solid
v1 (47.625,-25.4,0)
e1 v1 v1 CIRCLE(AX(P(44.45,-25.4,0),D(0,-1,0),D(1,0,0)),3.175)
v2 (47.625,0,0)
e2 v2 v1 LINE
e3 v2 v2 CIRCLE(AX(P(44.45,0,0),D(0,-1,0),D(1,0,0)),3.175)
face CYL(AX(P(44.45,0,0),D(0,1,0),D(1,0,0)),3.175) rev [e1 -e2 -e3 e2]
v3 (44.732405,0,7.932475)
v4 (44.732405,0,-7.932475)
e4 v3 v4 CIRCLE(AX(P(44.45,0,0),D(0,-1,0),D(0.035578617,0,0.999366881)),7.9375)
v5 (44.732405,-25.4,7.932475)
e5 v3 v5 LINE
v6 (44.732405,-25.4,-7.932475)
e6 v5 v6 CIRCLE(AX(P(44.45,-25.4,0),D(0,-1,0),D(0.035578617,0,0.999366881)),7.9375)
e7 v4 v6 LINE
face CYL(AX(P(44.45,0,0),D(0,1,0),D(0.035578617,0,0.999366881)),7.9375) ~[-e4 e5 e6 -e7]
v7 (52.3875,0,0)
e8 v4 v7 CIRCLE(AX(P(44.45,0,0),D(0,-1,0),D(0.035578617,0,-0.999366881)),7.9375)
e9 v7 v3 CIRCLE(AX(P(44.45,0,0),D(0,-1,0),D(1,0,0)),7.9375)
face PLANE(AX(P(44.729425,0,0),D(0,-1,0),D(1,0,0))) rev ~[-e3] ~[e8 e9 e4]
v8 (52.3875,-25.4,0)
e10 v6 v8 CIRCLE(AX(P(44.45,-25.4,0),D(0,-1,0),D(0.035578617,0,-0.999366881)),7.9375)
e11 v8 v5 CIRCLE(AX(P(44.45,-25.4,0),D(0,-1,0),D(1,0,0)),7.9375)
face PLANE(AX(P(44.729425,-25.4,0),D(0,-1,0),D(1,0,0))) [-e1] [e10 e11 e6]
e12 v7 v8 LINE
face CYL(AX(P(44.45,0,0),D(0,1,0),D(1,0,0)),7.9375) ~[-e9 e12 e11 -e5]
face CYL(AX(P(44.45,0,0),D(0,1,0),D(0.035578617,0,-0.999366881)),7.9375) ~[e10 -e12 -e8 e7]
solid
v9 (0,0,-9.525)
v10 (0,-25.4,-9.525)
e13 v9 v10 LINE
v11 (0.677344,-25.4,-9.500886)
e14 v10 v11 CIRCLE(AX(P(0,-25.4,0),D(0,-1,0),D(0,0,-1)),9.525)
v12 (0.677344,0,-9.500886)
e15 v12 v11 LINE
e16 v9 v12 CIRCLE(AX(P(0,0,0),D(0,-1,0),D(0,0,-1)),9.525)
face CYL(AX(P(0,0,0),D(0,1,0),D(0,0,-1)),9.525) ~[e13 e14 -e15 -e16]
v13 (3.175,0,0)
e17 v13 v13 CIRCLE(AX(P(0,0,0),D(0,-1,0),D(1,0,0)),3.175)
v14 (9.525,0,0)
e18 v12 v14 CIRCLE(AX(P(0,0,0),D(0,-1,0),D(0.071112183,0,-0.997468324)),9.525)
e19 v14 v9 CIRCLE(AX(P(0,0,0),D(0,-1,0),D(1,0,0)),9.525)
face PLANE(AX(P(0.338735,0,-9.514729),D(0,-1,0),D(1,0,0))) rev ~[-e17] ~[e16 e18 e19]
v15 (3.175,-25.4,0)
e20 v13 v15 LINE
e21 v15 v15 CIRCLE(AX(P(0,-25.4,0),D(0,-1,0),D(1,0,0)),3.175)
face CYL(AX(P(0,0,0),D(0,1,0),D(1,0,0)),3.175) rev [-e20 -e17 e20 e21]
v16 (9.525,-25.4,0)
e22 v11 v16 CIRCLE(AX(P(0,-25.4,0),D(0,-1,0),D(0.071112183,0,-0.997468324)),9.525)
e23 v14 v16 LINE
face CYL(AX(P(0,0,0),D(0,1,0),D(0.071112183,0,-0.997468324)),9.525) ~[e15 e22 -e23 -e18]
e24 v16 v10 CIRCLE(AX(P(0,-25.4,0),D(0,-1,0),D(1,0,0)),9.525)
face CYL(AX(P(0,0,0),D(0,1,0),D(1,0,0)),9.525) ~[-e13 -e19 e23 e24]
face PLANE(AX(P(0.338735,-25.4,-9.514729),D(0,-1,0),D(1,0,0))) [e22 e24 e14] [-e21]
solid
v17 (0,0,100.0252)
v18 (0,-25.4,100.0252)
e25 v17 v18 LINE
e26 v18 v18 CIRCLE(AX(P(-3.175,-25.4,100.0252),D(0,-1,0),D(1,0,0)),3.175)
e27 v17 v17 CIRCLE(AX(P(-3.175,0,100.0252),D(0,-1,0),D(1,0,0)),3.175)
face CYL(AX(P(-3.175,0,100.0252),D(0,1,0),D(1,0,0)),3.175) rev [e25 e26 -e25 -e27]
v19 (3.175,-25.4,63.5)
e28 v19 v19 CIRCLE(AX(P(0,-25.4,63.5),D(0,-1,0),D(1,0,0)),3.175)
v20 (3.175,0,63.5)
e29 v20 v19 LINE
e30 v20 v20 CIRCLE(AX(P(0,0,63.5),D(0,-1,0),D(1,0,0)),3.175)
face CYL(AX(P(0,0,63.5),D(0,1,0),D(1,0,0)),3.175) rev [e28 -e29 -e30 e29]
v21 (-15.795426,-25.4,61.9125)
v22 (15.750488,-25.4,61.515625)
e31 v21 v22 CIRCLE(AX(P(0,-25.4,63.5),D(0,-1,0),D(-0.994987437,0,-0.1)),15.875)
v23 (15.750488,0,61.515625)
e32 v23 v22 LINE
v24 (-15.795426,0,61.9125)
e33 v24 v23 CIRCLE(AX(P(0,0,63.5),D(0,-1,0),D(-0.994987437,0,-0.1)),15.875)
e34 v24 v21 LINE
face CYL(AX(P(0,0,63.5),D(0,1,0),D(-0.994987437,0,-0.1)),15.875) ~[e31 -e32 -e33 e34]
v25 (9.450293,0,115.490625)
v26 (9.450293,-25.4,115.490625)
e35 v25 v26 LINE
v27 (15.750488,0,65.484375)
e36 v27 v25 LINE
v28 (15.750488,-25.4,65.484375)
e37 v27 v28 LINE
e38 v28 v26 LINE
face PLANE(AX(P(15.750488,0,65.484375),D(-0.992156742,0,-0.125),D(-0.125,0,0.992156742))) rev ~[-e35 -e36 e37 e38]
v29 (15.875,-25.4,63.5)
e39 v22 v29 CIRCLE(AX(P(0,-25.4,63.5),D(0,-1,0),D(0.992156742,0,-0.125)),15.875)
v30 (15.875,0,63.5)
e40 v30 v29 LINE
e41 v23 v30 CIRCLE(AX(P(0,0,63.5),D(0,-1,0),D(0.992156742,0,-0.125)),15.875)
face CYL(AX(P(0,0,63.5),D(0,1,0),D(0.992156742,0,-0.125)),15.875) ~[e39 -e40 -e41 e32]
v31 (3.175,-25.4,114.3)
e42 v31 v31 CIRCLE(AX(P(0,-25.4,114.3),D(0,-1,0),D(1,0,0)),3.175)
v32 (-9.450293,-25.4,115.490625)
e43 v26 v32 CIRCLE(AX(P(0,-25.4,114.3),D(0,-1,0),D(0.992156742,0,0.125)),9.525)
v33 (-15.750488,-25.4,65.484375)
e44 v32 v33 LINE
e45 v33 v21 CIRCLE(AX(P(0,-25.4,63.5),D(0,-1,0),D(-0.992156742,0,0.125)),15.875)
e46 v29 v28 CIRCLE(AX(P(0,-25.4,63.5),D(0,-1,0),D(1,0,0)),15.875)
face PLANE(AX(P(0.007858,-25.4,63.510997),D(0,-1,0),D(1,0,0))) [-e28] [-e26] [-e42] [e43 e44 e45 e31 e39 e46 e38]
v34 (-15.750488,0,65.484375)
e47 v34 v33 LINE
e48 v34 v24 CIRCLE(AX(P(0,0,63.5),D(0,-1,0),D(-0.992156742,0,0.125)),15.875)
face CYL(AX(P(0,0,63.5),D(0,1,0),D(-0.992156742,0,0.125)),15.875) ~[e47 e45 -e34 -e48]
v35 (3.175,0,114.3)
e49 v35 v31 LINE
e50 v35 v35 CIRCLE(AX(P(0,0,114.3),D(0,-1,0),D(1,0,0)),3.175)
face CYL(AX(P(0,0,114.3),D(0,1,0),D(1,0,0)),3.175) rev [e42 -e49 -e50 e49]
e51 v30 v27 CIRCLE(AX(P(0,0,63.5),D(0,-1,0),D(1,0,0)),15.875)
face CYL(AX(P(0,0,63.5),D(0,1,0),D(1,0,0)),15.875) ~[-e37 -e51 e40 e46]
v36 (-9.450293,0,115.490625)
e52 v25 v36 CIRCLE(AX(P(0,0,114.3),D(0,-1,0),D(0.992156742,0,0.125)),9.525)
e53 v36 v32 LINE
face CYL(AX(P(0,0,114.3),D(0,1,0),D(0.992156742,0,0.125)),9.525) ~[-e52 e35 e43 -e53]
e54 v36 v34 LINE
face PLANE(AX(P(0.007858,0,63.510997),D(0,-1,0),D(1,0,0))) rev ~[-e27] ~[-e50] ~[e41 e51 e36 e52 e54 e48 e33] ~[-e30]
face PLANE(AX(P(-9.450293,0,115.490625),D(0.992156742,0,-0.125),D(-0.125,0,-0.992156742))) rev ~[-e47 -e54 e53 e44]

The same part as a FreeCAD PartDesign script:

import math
import FreeCAD as App
import Part
import Sketcher

V = App.Vector
Q = App.Units.Quantity

doc = App.newDocument("Part")
params = doc.addObject("Spreadsheet::Sheet", "Params")
for row, (alias, value) in enumerate([
    ("sketch1_diameter", "0.25 in"),
    ("sketch1_radius", "0.375 in"),
    ("pad1_length", "1 in"),
    ("sketch2_diameter", "0.25 in"),
    ("sketch2_radius", "0.3125 in"),
    ("pad2_length", "1 in"),
    ("sketch3_diameter", "0.25 in"),
    ("sketch3_radius", "0.625 in"),
    ("sketch3_radius2", "0.375 in"),
    ("pad3_length", "1 in"),
], start=1):
    params.set(f"A{row}", alias)
    params.set(f"B{row}", "=" + value)
    params.setAlias(f"B{row}", alias)

body = doc.addObject("PartDesign::Body", "Body")

# Sketch on XZ plane
sketch1 = body.newObject("Sketcher::SketchObject", "Sketch")
sketch1.AttachmentSupport = (doc.getObject("XZ_Plane"), [""])
sketch1.MapMode = "FlatFace"
sketch1.addGeometry([
    Part.ArcOfCircle(Part.Circle(V(0, 0, 0), V(0, 0, 1), 9.5), math.radians(-90), math.radians(-85.92)),
    Part.ArcOfCircle(Part.Circle(V(0, 0, 0), V(0, 0, 1), 9.5), math.radians(-86), math.radians(0)),
    Part.ArcOfCircle(Part.Circle(V(0, 0, 0), V(0, 0, 1), 9.5), math.radians(0), math.radians(270)),
    Part.Circle(V(0, 0, 0), V(0, 0, 1), 3.2),
], False)
sketch1.addConstraint([
    Sketcher.Constraint("Tangent", 0, 2, 1, 1),
    Sketcher.Constraint("Tangent", 1, 2, 2, 1),
    Sketcher.Constraint("Tangent", 2, 2, 0, 1),
    Sketcher.Constraint("Coincident", 0, 3, -1, 1),
    Sketcher.Constraint("Coincident", 3, 3, -1, 1),
    Sketcher.Constraint("PointOnObject", 1, 2, -1),
    Sketcher.Constraint("PointOnObject", 2, 2, -2),
    Sketcher.Constraint("Diameter", 3, Q("0.25 in")),
    Sketcher.Constraint("Radius", 0, Q("0.375 in")),
    Sketcher.Constraint("DistanceX", -1, 1, 0, 2, 0.677344),
])
sketch1.setExpression("Constraints[7]", "Params.sketch1_diameter")
sketch1.setExpression("Constraints[8]", "Params.sketch1_radius")
pad1 = body.newObject("PartDesign::Pad", "Pad")
pad1.Profile = sketch1
pad1.setExpression("Length", "Params.pad1_length")
body2 = doc.addObject("PartDesign::Body", "Body001")

# Sketch on XZ plane
sketch2 = body2.newObject("Sketcher::SketchObject", "Sketch001")
sketch2.AttachmentSupport = (doc.getObject("XZ_Plane001"), [""])
sketch2.MapMode = "FlatFace"
sketch2.addGeometry([
    Part.ArcOfCircle(Part.Circle(V(44.5, 0, 0), V(0, 0, 1), 7.9), math.radians(88), math.radians(272)),
    Part.ArcOfCircle(Part.Circle(V(44.5, 0, 0), V(0, 0, 1), 7.9), math.radians(-88), math.radians(0)),
    Part.ArcOfCircle(Part.Circle(V(44.5, 0, 0), V(0, 0, 1), 7.9), math.radians(0), math.radians(88)),
    Part.Circle(V(44.5, 0, 0), V(0, 0, 1), 3.2),
], False)
sketch2.addConstraint([
    Sketcher.Constraint("Tangent", 0, 2, 1, 1),
    Sketcher.Constraint("Tangent", 1, 2, 2, 1),
    Sketcher.Constraint("Tangent", 2, 2, 0, 1),
    Sketcher.Constraint("Coincident", 3, 3, 0, 3),
    Sketcher.Constraint("Symmetric", 0, 2, 2, 2, -1),
    Sketcher.Constraint("PointOnObject", 1, 2, -1),
    Sketcher.Constraint("Diameter", 3, Q("0.25 in")),
    Sketcher.Constraint("Radius", 0, Q("0.3125 in")),
    Sketcher.Constraint("DistanceX", -1, 1, 0, 3, Q("1.75 in")),
    Sketcher.Constraint("DistanceX", -1, 1, 0, 2, 44.732405),
])
sketch2.setExpression("Constraints[6]", "Params.sketch2_diameter")
sketch2.setExpression("Constraints[7]", "Params.sketch2_radius")
pad2 = body2.newObject("PartDesign::Pad", "Pad001")
pad2.Profile = sketch2
pad2.setExpression("Length", "Params.pad2_length")
body3 = doc.addObject("PartDesign::Body", "Body002")

# Sketch on XZ plane
sketch3 = body3.newObject("Sketcher::SketchObject", "Sketch002")
sketch3.AttachmentSupport = (doc.getObject("XZ_Plane002"), [""])
sketch3.MapMode = "FlatFace"
sketch3.addGeometry([
    Part.ArcOfCircle(Part.Circle(V(0, 63.5, 0), V(0, 0, 1), 15.9), math.radians(-174), math.radians(-7)),  # 0
    Part.ArcOfCircle(Part.Circle(V(0, 63.5, 0), V(0, 0, 1), 15.9), math.radians(-7.18), math.radians(0)),  # 1
    Part.ArcOfCircle(Part.Circle(V(0, 63.5, 0), V(0, 0, 1), 15.9), math.radians(0), math.radians(7.18)),  # 2
    Part.LineSegment(V(15.8, 65.5, 0), V(9.5, 115.5, 0)),  # 3
    Part.ArcOfCircle(Part.Circle(V(0, 114.3, 0), V(0, 0, 1), 9.5), math.radians(7), math.radians(173)),  # 4
    Part.LineSegment(V(-9.5, 115.5, 0), V(-15.8, 65.5, 0)),  # 5
    Part.ArcOfCircle(Part.Circle(V(0, 63.5, 0), V(0, 0, 1), 15.9), math.radians(172.82), math.radians(185.74)),  # 6
    Part.Circle(V(0, 63.5, 0), V(0, 0, 1), 3.2),  # 7
    Part.Circle(V(-3.2, 100, 0), V(0, 0, 1), 3.2),  # 8
    Part.Circle(V(0, 114.3, 0), V(0, 0, 1), 3.2),  # 9
], False)
sketch3.addConstraint([
    Sketcher.Constraint("Tangent", 0, 2, 1, 1),
    Sketcher.Constraint("Tangent", 1, 2, 2, 1),
    Sketcher.Constraint("Tangent", 2, 2, 3, 1),
    Sketcher.Constraint("Tangent", 3, 2, 4, 1),
    Sketcher.Constraint("Tangent", 4, 2, 5, 1),
    Sketcher.Constraint("Tangent", 5, 2, 6, 1),
    Sketcher.Constraint("Tangent", 6, 2, 0, 1),
    Sketcher.Constraint("Coincident", 2, 3, 0, 3),
    Sketcher.Constraint("Coincident", 7, 3, 0, 3),
    Sketcher.Constraint("Coincident", 9, 3, 4, 3),
    Sketcher.Constraint("Equal", 2, 6),
    Sketcher.Constraint("Equal", 7, 8),
    Sketcher.Constraint("Equal", 8, 9),
    Sketcher.Constraint("Symmetric", 3, 2, 4, 2, -2),
    Sketcher.Constraint("Horizontal", 7, 3, 1, 2),
    Sketcher.Constraint("Vertical", 0, 2, 2, 2),
    Sketcher.Constraint("Diameter", 7, Q("0.25 in")),
    Sketcher.Constraint("Radius", 0, Q("0.625 in")),
    Sketcher.Constraint("Radius", 4, Q("0.375 in")),
    Sketcher.Constraint("DistanceY", 0, 3, 4, 3, Q("2 in")),
    Sketcher.Constraint("DistanceY", -1, 1, 0, 3, Q("2.5 in")),
    Sketcher.Constraint("DistanceX", 8, 3, -1, 1, Q("0.125 in")),
    Sketcher.Constraint("DistanceY", -1, 1, 8, 3, Q("3.938 in")),
    Sketcher.Constraint("DistanceY", -1, 1, 6, 2, Q("2.4375 in")),
])
sketch3.setExpression("Constraints[16]", "Params.sketch3_diameter")
sketch3.setExpression("Constraints[17]", "Params.sketch3_radius")
sketch3.setExpression("Constraints[18]", "Params.sketch3_radius2")
pad3 = body3.newObject("PartDesign::Pad", "Pad002")
pad3.Profile = sketch3
pad3.setExpression("Length", "Params.pad3_length")

doc.recompute()
